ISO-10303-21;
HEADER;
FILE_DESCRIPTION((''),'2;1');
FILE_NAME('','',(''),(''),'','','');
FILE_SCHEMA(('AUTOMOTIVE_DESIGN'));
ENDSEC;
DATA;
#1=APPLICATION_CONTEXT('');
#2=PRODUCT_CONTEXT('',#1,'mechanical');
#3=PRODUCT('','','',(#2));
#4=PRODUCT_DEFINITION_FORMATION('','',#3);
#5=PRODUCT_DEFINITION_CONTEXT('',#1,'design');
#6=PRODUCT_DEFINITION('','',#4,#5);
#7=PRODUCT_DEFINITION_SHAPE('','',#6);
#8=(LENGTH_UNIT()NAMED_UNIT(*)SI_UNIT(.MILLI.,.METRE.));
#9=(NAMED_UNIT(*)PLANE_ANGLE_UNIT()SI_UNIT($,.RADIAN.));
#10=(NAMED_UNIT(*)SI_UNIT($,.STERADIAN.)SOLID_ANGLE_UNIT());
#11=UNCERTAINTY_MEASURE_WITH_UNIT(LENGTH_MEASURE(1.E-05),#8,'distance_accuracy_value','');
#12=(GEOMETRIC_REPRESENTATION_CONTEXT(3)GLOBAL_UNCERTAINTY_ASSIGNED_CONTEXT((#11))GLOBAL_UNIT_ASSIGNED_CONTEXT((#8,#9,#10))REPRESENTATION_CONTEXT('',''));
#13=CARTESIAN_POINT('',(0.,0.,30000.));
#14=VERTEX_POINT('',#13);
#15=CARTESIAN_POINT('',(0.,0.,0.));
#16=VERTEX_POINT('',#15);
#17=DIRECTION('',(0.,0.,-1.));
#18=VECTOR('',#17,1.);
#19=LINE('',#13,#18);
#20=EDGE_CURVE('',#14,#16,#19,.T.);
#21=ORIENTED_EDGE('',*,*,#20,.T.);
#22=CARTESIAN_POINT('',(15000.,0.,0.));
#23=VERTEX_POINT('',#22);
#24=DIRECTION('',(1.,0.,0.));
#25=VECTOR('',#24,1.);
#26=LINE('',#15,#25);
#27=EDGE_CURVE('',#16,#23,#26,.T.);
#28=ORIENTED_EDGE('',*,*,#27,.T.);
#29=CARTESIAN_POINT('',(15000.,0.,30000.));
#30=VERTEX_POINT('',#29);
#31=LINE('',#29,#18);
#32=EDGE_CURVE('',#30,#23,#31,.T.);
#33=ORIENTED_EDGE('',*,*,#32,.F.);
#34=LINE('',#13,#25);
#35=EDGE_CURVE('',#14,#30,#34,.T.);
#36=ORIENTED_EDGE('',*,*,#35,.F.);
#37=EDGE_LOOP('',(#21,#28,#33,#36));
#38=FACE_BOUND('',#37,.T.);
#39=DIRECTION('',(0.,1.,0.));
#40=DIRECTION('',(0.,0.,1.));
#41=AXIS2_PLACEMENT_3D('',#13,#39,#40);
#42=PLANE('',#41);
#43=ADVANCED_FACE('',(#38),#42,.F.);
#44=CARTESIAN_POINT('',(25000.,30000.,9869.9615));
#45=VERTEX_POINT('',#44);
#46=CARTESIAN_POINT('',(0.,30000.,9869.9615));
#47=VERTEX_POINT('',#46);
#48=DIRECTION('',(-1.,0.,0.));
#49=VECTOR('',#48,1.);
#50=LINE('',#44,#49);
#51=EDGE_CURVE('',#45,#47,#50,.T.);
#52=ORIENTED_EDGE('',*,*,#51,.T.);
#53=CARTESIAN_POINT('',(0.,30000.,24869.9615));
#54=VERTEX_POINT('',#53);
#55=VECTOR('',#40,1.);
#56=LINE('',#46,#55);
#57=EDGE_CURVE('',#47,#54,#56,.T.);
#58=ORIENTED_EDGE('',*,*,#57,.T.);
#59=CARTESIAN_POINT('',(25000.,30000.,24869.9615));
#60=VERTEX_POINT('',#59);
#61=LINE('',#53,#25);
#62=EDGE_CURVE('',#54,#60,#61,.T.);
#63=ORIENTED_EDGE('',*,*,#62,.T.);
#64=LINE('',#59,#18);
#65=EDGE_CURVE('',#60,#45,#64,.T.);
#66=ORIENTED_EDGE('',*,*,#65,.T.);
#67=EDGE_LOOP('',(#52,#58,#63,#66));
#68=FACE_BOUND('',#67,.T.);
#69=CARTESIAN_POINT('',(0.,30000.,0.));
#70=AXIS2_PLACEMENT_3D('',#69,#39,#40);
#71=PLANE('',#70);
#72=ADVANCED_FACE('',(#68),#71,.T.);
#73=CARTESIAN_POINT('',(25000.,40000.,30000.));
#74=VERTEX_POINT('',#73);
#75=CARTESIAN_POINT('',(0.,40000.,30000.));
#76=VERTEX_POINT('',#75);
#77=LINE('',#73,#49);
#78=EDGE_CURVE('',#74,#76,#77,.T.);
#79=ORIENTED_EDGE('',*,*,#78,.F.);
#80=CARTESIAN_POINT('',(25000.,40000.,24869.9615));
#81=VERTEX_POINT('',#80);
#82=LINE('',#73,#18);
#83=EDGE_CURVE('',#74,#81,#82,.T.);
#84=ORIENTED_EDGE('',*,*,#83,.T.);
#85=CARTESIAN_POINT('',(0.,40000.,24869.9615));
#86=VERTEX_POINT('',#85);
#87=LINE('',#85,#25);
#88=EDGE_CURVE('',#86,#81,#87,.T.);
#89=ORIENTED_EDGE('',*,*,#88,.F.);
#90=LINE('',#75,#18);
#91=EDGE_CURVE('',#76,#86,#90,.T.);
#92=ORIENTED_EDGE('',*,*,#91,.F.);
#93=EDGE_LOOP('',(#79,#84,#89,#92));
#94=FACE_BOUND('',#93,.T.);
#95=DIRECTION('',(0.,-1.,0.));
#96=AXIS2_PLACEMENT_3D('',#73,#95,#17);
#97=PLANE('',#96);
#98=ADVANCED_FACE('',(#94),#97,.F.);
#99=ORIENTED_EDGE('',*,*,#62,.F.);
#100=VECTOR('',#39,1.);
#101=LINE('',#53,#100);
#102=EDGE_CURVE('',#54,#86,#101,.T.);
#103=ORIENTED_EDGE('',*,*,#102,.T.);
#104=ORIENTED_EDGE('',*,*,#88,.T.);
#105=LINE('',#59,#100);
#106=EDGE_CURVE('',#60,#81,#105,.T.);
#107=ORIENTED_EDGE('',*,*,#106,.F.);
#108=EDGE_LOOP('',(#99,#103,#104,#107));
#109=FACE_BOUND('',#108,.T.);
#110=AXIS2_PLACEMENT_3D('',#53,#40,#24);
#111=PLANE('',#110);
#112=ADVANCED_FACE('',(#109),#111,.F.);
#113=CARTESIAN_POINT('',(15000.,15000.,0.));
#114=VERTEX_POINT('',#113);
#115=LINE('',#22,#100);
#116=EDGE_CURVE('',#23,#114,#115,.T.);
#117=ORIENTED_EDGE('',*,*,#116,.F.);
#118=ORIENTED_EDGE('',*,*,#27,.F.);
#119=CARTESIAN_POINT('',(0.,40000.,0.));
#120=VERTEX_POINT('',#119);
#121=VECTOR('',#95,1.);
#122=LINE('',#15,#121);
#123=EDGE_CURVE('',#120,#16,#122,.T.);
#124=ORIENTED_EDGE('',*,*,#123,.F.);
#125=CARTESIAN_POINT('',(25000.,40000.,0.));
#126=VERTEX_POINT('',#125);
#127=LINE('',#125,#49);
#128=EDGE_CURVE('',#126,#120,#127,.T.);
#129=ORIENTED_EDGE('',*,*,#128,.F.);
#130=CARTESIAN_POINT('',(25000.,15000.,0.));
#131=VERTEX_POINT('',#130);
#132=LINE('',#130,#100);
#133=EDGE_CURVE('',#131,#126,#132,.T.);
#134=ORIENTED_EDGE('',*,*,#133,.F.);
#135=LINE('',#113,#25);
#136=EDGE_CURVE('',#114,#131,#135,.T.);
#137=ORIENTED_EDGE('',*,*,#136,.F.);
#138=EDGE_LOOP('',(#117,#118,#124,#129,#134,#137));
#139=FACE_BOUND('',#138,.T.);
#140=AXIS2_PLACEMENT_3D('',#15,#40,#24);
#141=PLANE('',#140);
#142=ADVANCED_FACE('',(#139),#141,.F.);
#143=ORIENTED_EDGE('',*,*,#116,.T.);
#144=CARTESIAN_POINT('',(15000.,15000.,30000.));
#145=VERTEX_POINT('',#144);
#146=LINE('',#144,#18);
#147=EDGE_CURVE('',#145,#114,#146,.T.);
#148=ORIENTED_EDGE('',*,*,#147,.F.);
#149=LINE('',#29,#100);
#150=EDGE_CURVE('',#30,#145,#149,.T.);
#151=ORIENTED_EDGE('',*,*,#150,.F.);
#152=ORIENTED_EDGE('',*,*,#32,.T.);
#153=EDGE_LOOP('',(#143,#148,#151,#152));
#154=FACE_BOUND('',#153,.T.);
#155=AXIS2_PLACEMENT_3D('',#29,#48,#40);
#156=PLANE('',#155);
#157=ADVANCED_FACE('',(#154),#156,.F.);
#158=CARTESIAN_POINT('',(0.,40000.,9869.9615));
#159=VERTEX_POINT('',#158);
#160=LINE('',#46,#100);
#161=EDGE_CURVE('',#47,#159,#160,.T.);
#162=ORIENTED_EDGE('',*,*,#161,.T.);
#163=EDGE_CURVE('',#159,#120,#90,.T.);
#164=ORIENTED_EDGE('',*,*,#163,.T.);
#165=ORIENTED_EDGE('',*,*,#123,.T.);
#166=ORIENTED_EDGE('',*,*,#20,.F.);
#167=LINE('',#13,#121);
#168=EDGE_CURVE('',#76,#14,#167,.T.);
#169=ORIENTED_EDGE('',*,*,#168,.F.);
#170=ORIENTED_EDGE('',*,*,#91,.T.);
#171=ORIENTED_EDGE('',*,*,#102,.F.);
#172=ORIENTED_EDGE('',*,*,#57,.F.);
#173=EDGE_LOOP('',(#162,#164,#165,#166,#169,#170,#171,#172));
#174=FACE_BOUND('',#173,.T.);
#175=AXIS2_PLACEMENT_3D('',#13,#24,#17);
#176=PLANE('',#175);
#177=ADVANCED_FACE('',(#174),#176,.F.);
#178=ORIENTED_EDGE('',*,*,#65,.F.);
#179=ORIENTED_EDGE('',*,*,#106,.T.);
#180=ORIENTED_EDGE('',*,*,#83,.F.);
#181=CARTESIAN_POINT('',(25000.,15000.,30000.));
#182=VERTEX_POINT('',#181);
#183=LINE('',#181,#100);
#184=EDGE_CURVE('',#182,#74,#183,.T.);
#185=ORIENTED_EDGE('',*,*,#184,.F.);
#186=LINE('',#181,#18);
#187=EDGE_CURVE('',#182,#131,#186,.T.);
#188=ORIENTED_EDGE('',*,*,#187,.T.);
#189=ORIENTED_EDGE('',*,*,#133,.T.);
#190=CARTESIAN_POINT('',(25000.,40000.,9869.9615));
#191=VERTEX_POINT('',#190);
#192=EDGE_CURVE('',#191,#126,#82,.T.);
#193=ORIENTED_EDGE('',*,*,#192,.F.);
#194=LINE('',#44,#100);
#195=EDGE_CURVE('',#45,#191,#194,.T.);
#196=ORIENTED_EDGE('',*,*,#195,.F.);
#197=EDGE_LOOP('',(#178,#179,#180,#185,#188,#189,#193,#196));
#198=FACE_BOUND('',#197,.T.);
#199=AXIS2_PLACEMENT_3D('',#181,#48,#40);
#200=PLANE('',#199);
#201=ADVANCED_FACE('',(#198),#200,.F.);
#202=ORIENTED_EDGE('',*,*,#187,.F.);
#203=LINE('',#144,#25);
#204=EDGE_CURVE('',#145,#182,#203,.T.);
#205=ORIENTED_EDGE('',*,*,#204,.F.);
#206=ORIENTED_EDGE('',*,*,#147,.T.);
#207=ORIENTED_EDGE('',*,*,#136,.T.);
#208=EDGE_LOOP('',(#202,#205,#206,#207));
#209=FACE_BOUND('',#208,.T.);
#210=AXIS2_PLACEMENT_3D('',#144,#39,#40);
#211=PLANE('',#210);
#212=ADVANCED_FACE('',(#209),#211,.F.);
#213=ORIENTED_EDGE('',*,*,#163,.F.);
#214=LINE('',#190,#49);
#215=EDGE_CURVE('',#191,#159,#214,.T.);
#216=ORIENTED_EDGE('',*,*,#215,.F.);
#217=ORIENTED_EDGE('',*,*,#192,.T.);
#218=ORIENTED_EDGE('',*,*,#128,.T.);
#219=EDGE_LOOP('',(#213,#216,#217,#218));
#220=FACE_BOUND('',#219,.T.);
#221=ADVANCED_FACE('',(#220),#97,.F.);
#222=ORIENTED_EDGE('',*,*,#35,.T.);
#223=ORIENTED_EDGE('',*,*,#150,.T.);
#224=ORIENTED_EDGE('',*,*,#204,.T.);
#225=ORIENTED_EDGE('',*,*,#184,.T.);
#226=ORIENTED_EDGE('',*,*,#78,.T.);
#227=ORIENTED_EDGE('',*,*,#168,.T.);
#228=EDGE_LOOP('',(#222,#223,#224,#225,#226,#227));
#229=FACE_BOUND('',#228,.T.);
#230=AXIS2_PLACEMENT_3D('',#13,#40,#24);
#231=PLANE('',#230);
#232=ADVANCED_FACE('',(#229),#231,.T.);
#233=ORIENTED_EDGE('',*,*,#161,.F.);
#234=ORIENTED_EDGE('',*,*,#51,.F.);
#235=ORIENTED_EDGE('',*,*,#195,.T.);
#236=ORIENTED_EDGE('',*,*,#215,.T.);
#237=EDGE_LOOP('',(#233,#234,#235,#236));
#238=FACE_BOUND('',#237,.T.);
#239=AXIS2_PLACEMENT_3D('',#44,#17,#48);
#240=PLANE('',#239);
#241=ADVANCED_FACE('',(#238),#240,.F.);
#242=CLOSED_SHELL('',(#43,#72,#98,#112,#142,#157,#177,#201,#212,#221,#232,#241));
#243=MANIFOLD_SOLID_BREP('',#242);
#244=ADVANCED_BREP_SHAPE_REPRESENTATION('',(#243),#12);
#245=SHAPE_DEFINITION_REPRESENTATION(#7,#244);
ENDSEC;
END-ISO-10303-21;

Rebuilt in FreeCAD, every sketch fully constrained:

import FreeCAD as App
import Part
import Sketcher

V = App.Vector

doc = App.newDocument("Part")
body = doc.addObject("PartDesign::Body", "Body")

# Sketch on XY plane
sketch1 = body.newObject("Sketcher::SketchObject", "Sketch")
sketch1.AttachmentSupport = (doc.getObject("XY_Plane"), [""])
sketch1.MapMode = "FlatFace"
sketch1.addGeometry([
    Part.LineSegment(V(0, 0, 0), V(15000, 0, 0)),  # 0
    Part.LineSegment(V(15000, 0, 0), V(15000, 15000, 0)),  # 1
    Part.LineSegment(V(15000, 15000, 0), V(25000, 15000, 0)),  # 2
    Part.LineSegment(V(25000, 15000, 0), V(25000, 40000, 0)),  # 3
    Part.LineSegment(V(25000, 40000, 0), V(0, 40000, 0)),  # 4
    Part.LineSegment(V(0, 40000, 0), V(0, 0, 0)),  # 5
], False)
sketch1.addConstraint([
    Sketcher.Constraint("Coincident", 0, 2, 1, 1),
    Sketcher.Constraint("Coincident", 1, 2, 2, 1),
    Sketcher.Constraint("Coincident", 2, 2, 3, 1),
    Sketcher.Constraint("Coincident", 3, 2, 4, 1),
    Sketcher.Constraint("Coincident", 4, 2, 5, 1),
    Sketcher.Constraint("Coincident", 5, 2, 0, 1),
    Sketcher.Constraint("Horizontal", 0),
    Sketcher.Constraint("Vertical", 1),
    Sketcher.Constraint("Horizontal", 2),
    Sketcher.Constraint("Vertical", 3),
    Sketcher.Constraint("Horizontal", 4),
    Sketcher.Constraint("Vertical", 5),
    Sketcher.Constraint("Coincident", 5, 2, -1, 1),
    Sketcher.Constraint("Equal", 0, 1),
    Sketcher.Constraint("Equal", 4, 3),
    Sketcher.Constraint("DistanceX", 0, 1, 0, 2, 15000.0),
    Sketcher.Constraint("DistanceX", 2, 1, 2, 2, 10000.0),
])
pad1 = body.newObject("PartDesign::Pad", "Pad")
pad1.Profile = sketch1
pad1.Length = 30000

# Sketch on XZ plane
sketch2 = body.newObject("Sketcher::SketchObject", "Sketch001")
sketch2.AttachmentSupport = (doc.getObject("XZ_Plane"), [""])
sketch2.MapMode = "FlatFace"
sketch2.AttachmentOffset = App.Placement(V(0, 0, -40000), App.Rotation())
sketch2.addGeometry([
    Part.LineSegment(V(0, 9870, 0), V(0, 24870, 0)),
    Part.LineSegment(V(0, 24870, 0), V(25000, 24870, 0)),
    Part.LineSegment(V(25000, 24870, 0), V(25000, 9870, 0)),
    Part.LineSegment(V(25000, 9870, 0), V(0, 9870, 0)),
], False)
sketch2.addConstraint([
    Sketcher.Constraint("Coincident", 0, 2, 1, 1),
    Sketcher.Constraint("Coincident", 1, 2, 2, 1),
    Sketcher.Constraint("Coincident", 2, 2, 3, 1),
    Sketcher.Constraint("Coincident", 3, 2, 0, 1),
    Sketcher.Constraint("Vertical", 0),
    Sketcher.Constraint("Horizontal", 1),
    Sketcher.Constraint("Vertical", 2),
    Sketcher.Constraint("Horizontal", 3),
    Sketcher.Constraint("PointOnObject", 0, 2, -2),
    Sketcher.Constraint("DistanceX", 1, 1, 1, 2, 25000.0),
    Sketcher.Constraint("DistanceY", 0, 1, 0, 2, 15000.0),
    Sketcher.Constraint("DistanceY", -1, 1, 0, 2, 24869.9615),
])
pocket1 = body.newObject("PartDesign::Pocket", "Pocket")
pocket1.Profile = sketch2
pocket1.Length = 10000
pocket1.Reversed = True

doc.recompute()
